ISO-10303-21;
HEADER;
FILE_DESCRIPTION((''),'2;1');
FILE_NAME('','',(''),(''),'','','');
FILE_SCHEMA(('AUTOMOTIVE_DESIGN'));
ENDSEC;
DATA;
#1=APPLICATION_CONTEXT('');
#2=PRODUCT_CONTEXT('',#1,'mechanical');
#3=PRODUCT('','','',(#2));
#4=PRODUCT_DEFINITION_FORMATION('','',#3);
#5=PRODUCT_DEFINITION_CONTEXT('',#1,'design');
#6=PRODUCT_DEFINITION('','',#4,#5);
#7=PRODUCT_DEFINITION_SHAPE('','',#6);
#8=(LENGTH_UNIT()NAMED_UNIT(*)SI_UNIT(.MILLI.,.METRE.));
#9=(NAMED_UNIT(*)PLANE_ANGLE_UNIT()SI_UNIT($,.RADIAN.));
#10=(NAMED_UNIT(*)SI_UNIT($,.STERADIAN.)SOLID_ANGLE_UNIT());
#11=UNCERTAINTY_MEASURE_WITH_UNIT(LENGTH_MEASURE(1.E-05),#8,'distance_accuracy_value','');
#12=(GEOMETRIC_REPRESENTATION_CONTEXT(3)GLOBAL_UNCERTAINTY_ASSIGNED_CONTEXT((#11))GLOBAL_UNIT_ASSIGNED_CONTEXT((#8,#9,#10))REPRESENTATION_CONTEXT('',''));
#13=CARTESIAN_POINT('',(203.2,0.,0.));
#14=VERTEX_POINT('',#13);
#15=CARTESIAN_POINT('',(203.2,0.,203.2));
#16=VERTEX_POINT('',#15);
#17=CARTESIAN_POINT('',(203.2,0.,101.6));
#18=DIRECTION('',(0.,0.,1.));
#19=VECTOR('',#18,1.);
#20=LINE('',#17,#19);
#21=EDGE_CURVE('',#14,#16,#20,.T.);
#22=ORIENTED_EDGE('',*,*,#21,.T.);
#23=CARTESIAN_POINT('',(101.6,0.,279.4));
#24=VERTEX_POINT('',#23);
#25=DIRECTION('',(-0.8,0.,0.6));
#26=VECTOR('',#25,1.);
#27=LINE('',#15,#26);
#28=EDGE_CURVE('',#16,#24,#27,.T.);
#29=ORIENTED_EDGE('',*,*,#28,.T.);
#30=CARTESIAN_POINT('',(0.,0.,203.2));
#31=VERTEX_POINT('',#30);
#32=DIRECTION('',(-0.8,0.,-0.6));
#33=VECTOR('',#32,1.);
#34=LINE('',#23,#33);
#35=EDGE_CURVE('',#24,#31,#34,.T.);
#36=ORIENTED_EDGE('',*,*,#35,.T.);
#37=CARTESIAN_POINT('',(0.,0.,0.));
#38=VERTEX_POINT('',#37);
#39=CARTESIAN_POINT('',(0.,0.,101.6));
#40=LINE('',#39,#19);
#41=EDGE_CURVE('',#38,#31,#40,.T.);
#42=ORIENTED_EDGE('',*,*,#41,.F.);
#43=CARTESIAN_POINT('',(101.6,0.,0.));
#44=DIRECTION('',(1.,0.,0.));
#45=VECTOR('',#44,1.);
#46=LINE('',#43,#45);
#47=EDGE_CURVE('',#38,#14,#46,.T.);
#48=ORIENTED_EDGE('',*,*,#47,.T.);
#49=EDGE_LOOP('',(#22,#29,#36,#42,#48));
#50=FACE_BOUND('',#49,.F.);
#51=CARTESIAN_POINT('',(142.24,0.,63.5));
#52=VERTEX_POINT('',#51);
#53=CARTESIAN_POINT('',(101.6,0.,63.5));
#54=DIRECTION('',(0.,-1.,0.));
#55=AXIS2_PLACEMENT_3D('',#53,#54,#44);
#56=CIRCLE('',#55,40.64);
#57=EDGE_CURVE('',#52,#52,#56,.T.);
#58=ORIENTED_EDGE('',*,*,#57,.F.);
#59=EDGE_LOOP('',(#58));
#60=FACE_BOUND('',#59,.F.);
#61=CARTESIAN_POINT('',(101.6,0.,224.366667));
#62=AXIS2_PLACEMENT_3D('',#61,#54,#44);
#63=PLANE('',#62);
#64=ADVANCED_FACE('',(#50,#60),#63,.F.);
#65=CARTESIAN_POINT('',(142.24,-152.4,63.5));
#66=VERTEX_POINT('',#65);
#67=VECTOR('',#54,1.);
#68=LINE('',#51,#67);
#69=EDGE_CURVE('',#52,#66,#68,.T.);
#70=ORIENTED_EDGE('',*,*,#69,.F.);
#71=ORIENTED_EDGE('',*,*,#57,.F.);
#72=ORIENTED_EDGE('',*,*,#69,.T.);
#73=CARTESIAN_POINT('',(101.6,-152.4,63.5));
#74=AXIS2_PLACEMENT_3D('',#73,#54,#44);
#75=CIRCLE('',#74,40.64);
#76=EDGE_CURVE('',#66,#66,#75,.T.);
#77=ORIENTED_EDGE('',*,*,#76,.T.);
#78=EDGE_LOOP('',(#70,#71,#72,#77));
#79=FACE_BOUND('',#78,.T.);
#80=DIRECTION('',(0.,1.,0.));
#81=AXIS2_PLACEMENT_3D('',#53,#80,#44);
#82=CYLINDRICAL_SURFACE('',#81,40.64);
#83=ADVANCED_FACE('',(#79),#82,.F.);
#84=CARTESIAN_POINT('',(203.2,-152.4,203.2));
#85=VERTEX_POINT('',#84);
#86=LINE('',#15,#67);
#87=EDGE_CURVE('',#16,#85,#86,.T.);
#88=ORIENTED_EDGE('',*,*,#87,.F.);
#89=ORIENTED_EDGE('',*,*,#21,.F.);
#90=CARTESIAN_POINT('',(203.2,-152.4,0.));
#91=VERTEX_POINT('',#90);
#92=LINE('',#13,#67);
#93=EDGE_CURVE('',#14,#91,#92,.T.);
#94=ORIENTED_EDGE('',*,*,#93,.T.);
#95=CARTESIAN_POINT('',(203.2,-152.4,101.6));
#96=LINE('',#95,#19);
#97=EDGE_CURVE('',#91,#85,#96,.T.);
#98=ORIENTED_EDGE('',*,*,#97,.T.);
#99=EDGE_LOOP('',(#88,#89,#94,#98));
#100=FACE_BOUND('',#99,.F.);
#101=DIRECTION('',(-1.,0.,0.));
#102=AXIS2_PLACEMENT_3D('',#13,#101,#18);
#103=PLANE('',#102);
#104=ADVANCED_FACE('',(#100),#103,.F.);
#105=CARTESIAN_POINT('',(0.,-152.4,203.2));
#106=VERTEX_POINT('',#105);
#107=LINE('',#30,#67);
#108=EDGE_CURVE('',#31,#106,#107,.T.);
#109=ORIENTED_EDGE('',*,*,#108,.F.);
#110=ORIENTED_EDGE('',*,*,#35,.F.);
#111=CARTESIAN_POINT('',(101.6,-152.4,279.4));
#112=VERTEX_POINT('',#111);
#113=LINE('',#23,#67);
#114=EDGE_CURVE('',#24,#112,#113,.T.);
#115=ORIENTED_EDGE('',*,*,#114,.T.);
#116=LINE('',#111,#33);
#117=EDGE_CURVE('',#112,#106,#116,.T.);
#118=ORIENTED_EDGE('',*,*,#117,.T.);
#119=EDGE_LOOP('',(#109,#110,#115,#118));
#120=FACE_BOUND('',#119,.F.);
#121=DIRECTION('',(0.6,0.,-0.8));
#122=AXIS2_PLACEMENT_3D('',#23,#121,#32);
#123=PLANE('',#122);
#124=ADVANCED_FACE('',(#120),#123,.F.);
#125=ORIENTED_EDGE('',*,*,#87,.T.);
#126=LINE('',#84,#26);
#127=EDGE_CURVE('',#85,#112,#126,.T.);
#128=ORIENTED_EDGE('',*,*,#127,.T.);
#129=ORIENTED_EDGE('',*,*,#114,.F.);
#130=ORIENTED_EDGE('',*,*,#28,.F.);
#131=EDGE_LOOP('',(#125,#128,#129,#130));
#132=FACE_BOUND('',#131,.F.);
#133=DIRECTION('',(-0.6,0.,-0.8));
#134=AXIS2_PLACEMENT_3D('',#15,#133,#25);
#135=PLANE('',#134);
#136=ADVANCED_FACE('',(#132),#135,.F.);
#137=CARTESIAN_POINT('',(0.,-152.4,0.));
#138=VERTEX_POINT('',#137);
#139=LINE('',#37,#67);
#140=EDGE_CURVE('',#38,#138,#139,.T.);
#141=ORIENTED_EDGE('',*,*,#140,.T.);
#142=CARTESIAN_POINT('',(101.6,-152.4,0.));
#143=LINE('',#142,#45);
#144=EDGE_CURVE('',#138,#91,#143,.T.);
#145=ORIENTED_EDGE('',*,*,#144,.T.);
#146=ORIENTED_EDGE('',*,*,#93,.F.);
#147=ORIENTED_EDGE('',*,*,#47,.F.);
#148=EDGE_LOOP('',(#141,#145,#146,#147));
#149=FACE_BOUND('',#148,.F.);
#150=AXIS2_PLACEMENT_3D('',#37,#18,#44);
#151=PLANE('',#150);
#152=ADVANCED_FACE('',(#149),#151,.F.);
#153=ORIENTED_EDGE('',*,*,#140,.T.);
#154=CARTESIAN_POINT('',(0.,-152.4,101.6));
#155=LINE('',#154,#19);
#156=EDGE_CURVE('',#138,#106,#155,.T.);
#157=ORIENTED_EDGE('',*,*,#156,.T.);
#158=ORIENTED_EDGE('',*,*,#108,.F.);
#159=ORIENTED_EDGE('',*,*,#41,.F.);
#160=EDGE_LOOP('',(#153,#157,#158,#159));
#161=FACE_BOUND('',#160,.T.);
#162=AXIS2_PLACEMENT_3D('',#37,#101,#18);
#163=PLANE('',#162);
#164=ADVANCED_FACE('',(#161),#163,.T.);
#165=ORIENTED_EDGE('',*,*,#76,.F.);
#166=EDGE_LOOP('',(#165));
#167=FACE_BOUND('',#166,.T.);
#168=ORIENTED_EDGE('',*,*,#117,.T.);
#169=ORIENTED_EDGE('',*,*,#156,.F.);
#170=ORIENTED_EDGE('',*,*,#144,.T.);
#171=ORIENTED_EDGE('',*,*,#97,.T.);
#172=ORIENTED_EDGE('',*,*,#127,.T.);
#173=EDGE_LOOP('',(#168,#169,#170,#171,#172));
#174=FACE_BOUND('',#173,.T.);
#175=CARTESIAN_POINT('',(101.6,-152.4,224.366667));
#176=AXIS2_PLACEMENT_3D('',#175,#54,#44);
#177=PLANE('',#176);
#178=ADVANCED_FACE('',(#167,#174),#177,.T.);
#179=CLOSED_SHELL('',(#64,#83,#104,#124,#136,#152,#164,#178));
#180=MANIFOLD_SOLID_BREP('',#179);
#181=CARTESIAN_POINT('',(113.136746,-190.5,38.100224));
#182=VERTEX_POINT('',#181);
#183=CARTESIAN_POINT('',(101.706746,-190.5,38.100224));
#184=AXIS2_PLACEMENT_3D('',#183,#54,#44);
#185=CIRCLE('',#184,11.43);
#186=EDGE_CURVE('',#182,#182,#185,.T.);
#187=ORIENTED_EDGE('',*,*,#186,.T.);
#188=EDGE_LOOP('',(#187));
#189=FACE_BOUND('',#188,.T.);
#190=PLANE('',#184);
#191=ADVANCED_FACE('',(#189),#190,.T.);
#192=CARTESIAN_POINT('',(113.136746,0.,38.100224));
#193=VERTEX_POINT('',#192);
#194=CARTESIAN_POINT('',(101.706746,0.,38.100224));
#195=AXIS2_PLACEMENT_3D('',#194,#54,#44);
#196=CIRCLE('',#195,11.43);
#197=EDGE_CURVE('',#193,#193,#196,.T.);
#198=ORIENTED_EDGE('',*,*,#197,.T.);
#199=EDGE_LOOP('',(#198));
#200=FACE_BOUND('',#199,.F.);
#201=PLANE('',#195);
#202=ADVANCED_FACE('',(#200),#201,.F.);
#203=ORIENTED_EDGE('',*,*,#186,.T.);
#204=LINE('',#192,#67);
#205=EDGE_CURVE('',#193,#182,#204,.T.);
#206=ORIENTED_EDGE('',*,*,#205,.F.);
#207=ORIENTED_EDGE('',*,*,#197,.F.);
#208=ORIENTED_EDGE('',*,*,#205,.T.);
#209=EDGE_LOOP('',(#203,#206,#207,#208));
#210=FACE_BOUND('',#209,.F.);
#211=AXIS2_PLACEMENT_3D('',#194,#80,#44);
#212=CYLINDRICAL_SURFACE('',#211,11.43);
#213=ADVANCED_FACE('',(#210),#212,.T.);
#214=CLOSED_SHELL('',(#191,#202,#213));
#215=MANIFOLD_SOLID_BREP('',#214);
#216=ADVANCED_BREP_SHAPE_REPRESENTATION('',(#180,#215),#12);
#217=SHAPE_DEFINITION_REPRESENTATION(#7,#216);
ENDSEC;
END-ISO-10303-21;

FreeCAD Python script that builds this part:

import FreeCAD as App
import Part
import Sketcher

V = App.Vector
Q = App.Units.Quantity

doc = App.newDocument("Part")
body = doc.addObject("PartDesign::Body", "Body")

sketch1 = body.newObject("Sketcher::SketchObject", "Sketch")
sketch1.AttachmentSupport = (doc.getObject("XZ_Plane"), [""])
sketch1.MapMode = "FlatFace"
sketch1.addGeometry(Part.LineSegment(V(102, 279, 0), V(0, 203, 0)), False)
sketch1.addGeometry(Part.LineSegment(V(0, 203, 0), V(0, 0, 0)), False)
sketch1.addGeometry(Part.LineSegment(V(0, 0, 0), V(203, 0, 0)), False)
sketch1.addGeometry(Part.LineSegment(V(203, 0, 0), V(203, 203, 0)), False)
sketch1.addGeometry(Part.LineSegment(V(203, 203, 0), V(102, 279, 0)), False)
sketch1.addGeometry(Part.Circle(V(102, 64, 0), V(0, 0, 1), 41), False)
sketch1.addConstraint(Sketcher.Constraint("Coincident", 0, 2, 1, 1))
sketch1.addConstraint(Sketcher.Constraint("Coincident", 1, 2, 2, 1))
sketch1.addConstraint(Sketcher.Constraint("Coincident", 2, 2, 3, 1))
sketch1.addConstraint(Sketcher.Constraint("Coincident", 3, 2, 4, 1))
sketch1.addConstraint(Sketcher.Constraint("Coincident", 4, 2, 0, 1))
sketch1.addConstraint(Sketcher.Constraint("Vertical", 1))
sketch1.addConstraint(Sketcher.Constraint("Horizontal", 2))
sketch1.addConstraint(Sketcher.Constraint("Vertical", 3))
sketch1.addConstraint(Sketcher.Constraint("Coincident", 1, 2, -1, 1))
sketch1.addConstraint(Sketcher.Constraint("Horizontal", 0, 2, 3, 2))
sketch1.addConstraint(Sketcher.Constraint("Vertical", 5, 3, 4, 2))
sketch1.addConstraint(Sketcher.Constraint("Equal", 2, 1))
sketch1.addConstraint(Sketcher.Constraint("Equal", 0, 4))
sketch1.addConstraint(Sketcher.Constraint("Diameter", 5, Q("3.2 in")))
sketch1.addConstraint(Sketcher.Constraint("DistanceX", 2, 1, 2, 2, Q("8 in")))
sketch1.addConstraint(Sketcher.Constraint("Distance", 0, Q("5 in")))
sketch1.addConstraint(Sketcher.Constraint("DistanceY", -1, 1, 5, 3, Q("2.5 in")))
pad1 = body.newObject("PartDesign::Pad", "Pad")
pad1.Profile = sketch1
pad1.Length = Q("6 in")
body2 = doc.addObject("PartDesign::Body", "Body001")

sketch2 = body2.newObject("Sketcher::SketchObject", "Sketch001")
sketch2.AttachmentSupport = (doc.getObject("XZ_Plane001"), [""])
sketch2.MapMode = "FlatFace"
sketch2.addGeometry(Part.Circle(V(102, 38, 0), V(0, 0, 1), 11), False)
sketch2.addConstraint(Sketcher.Constraint("Diameter", 0, Q("0.9 in")))
sketch2.addConstraint(Sketcher.Constraint("DistanceX", -1, 1, 0, 3, Q("101.706746 mm")))
sketch2.addConstraint(Sketcher.Constraint("DistanceY", -1, 1, 0, 3, Q("38.100224 mm")))
pad2 = body2.newObject("PartDesign::Pad", "Pad001")
pad2.Profile = sketch2
pad2.Length = Q("7.5 in")

doc.recompute()
